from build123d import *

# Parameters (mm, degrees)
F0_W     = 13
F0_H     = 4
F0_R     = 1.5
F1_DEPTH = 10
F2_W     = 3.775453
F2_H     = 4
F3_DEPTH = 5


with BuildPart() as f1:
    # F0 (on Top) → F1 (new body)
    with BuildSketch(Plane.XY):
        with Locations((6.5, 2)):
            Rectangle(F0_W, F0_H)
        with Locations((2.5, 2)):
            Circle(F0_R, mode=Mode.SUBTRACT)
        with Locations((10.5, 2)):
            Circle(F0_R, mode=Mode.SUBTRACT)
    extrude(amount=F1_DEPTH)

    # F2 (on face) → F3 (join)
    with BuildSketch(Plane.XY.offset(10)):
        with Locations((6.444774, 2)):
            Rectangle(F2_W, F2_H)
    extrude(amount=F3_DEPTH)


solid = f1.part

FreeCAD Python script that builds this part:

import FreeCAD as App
import Part
import Sketcher
Q = App.Units.Quantity


def add_polygon(sketch, points):
    """Adds a closed chain of lines whose ends are joined by coincident constraints."""
    first, n = sketch.GeometryCount, len(points)
    for a, b in zip(points, points[1:] + points[:1]):
        sketch.addGeometry(Part.LineSegment(App.Vector(*a, 0), App.Vector(*b, 0)), False)
    for i in range(n):
        sketch.addConstraint(Sketcher.Constraint("Coincident", first + i, 2, first + (i + 1) % n, 1))

doc = App.newDocument("Part")
params = doc.addObject("Spreadsheet::Sheet", "Params")
for row, (alias, value) in enumerate([
    ("sketch1_diameter", "3 mm"),
    ("sketch1_width", "13 mm"),
    ("sketch1_height", "4 mm"),
    ("pad1_length", "10 mm"),
    ("sketch2_height", "4 mm"),
    ("pad2_length", "5 mm"),
], start=1):
    params.set(f"A{row}", alias)
    params.set(f"B{row}", "=" + value)
    params.setAlias(f"B{row}", alias)

body = doc.addObject("PartDesign::Body", "Body")

sketch1 = body.newObject("Sketcher::SketchObject", "Sketch")
sketch1.AttachmentSupport = (doc.getObject("XY_Plane"), [""])
sketch1.MapMode = "FlatFace"
add_polygon(sketch1, [(0, 4), (0, 0), (13, 0), (13, 4)])
sketch1.addGeometry(Part.Circle(App.Vector(2.5, 2, 0), App.Vector(0, 0, 1), 1.5), False)
sketch1.addGeometry(Part.Circle(App.Vector(10.5, 2, 0), App.Vector(0, 0, 1), 1.5), False)
sketch1.addConstraint([
    Sketcher.Constraint("Vertical", 0),
    Sketcher.Constraint("Horizontal", 1),
    Sketcher.Constraint("Vertical", 2),
    Sketcher.Constraint("Horizontal", 3),
    Sketcher.Constraint("Coincident", 0, 2, -1, 1),
    Sketcher.Constraint("Equal", 4, 5),
    Sketcher.Constraint("Horizontal", 4, 3, 5, 3),
    Sketcher.Constraint("Diameter", 4, Q("3 mm")),
    Sketcher.Constraint("DistanceX", 1, 1, 1, 2, Q("13 mm")),
    Sketcher.Constraint("DistanceY", 0, 2, 0, 1, Q("4 mm")),
    Sketcher.Constraint("DistanceY", -1, 1, 4, 3, Q("2 mm")),
    Sketcher.Constraint("DistanceX", 4, 3, 5, 3, Q("8 mm")),
    Sketcher.Constraint("DistanceX", -1, 1, 4, 3, Q("2.5 mm")),
])
sketch1.setExpression("Constraints[11]", "Params.sketch1_diameter")
sketch1.setExpression("Constraints[12]", "Params.sketch1_width")
sketch1.setExpression("Constraints[13]", "Params.sketch1_height")
pad1 = body.newObject("PartDesign::Pad", "Pad")
pad1.Profile = sketch1
pad1.setExpression("Length", "Params.pad1_length")

sketch2 = body.newObject("Sketcher::SketchObject", "Sketch001")
sketch2.AttachmentSupport = (doc.getObject("XY_Plane"), [""])
sketch2.MapMode = "FlatFace"
sketch2.AttachmentOffset = App.Placement(App.Vector(0, 0, 10), App.Rotation())
add_polygon(sketch2, [(4.557048, 4), (4.557048, 0), (8.332501, 0), (8.332501, 4)])
sketch2.addConstraint([
    Sketcher.Constraint("Vertical", 0),
    Sketcher.Constraint("Horizontal", 1),
    Sketcher.Constraint("Vertical", 2),
    Sketcher.Constraint("Horizontal", 3),
    Sketcher.Constraint("PointOnObject", 0, 2, -1),
    Sketcher.Constraint("DistanceY", 0, 2, 0, 1, Q("4 mm")),
    Sketcher.Constraint("DistanceX", -1, 1, 1, 2, Q("8.332501 mm")),
    Sketcher.Constraint("DistanceX", 1, 1, 1, 2, Q("3.775453 mm")),
])
sketch2.setExpression("Constraints[9]", "Params.sketch2_height")
pad2 = body.newObject("PartDesign::Pad", "Pad001")
pad2.Profile = sketch2
pad2.setExpression("Length", "Params.pad2_length")

doc.recompute()
